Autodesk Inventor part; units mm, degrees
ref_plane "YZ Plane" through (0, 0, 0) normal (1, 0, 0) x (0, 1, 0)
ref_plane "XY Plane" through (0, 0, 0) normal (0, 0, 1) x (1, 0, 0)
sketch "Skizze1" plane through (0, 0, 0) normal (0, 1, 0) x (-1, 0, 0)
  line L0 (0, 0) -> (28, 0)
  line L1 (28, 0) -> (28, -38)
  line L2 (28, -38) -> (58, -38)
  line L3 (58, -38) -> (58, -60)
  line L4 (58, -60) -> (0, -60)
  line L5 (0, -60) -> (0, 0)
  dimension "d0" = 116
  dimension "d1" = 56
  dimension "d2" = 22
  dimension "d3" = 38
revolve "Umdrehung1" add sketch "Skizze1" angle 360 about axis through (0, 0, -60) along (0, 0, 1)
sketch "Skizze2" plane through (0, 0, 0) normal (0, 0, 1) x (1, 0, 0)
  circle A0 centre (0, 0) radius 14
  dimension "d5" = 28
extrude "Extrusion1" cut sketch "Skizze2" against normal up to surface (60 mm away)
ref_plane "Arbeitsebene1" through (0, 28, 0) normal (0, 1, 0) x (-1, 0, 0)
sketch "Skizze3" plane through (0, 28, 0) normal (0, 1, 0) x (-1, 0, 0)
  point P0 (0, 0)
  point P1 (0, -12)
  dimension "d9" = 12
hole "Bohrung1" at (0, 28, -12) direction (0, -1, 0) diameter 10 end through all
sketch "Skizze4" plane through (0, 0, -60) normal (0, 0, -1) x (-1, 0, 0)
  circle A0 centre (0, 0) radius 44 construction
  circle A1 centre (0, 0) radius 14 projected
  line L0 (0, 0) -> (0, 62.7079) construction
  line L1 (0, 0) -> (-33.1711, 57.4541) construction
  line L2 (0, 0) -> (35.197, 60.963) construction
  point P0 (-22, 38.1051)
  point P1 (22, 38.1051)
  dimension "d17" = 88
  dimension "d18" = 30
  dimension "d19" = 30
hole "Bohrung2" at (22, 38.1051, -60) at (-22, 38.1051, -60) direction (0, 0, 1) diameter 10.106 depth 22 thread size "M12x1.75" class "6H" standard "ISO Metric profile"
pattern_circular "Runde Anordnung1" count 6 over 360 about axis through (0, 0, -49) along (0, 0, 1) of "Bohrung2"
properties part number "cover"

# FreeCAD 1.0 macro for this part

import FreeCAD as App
import Part
import Sketcher

V = App.Vector

doc = App.newDocument("Part")
params = doc.addObject("Spreadsheet::Sheet", "Params")
for row, (alias, value) in enumerate([
    ("sketch1_height", "22 mm"),
    ("sketch1_height2", "38 mm"),
    ("sketch1_width", "28 mm"),
    ("sketch1_width2", "58 mm"),
    ("revolution_angle", "360 deg"),
    ("sketch2_diameter", "28 mm"),
    ("pocket1_length", "60 mm"),
    ("sketch3_diameter", "10 mm"),
    ("hole_diameter", "10 mm"),
    ("hole2_diameter", "10.106 mm"),
    ("hole2_depth", "22 mm"),
], start=1):
    params.set(f"A{row}", alias)
    params.set(f"B{row}", "=" + value)
    params.setAlias(f"B{row}", alias)

body = doc.addObject("PartDesign::Body", "Body")

sketch1 = body.newObject("Sketcher::SketchObject", "Sketch")
sketch1.AttachmentSupport = (doc.getObject("XZ_Plane"), [""])
sketch1.MapMode = "FlatFace"
sketch1.addGeometry(Part.LineSegment(V(-28, 0, 0), V(0, 0, 0)), False)
sketch1.addGeometry(Part.LineSegment(V(0, 0, 0), V(0, -60, 0)), False)
sketch1.addGeometry(Part.LineSegment(V(0, -60, 0), V(-58, -60, 0)), False)
sketch1.addGeometry(Part.LineSegment(V(-58, -60, 0), V(-58, -38, 0)), False)
sketch1.addGeometry(Part.LineSegment(V(-58, -38, 0), V(-28, -38, 0)), False)
sketch1.addGeometry(Part.LineSegment(V(-28, -38, 0), V(-28, 0, 0)), False)
sketch1.addConstraint(Sketcher.Constraint("Coincident", 0, 2, 1, 1))
sketch1.addConstraint(Sketcher.Constraint("Coincident", 1, 2, 2, 1))
sketch1.addConstraint(Sketcher.Constraint("Coincident", 2, 2, 3, 1))
sketch1.addConstraint(Sketcher.Constraint("Coincident", 3, 2, 4, 1))
sketch1.addConstraint(Sketcher.Constraint("Coincident", 4, 2, 5, 1))
sketch1.addConstraint(Sketcher.Constraint("Coincident", 5, 2, 0, 1))
sketch1.addConstraint(Sketcher.Constraint("Horizontal", 0))
sketch1.addConstraint(Sketcher.Constraint("Vertical", 1))
sketch1.addConstraint(Sketcher.Constraint("Horizontal", 2))
sketch1.addConstraint(Sketcher.Constraint("Vertical", 3))
sketch1.addConstraint(Sketcher.Constraint("Horizontal", 4))
sketch1.addConstraint(Sketcher.Constraint("Vertical", 5))
sketch1.addConstraint(Sketcher.Constraint("Coincident", 0, 2, -1, 1))
sketch1.addConstraint(Sketcher.Constraint("DistanceY", 3, 1, 3, 2, 22.0))
sketch1.addConstraint(Sketcher.Constraint("DistanceY", 5, 1, 5, 2, 38.0))
sketch1.addConstraint(Sketcher.Constraint("DistanceX", 0, 1, 0, 2, 28.0))
sketch1.addConstraint(Sketcher.Constraint("DistanceX", 2, 2, 2, 1, 58.0))
sketch1.setExpression("Constraints[13]", "Params.sketch1_height")
sketch1.setExpression("Constraints[14]", "Params.sketch1_height2")
sketch1.setExpression("Constraints[15]", "Params.sketch1_width")
sketch1.setExpression("Constraints[16]", "Params.sketch1_width2")
revolution = body.newObject("PartDesign::Revolution", "Revolution")
revolution.Profile = sketch1
revolution.ReferenceAxis = (sketch1, ["V_Axis"])
revolution.setExpression("Angle", "Params.revolution_angle")

sketch2 = body.newObject("Sketcher::SketchObject", "Sketch001")
sketch2.AttachmentSupport = (doc.getObject("XY_Plane"), [""])
sketch2.MapMode = "FlatFace"
sketch2.addGeometry(Part.Circle(V(0, 0, 0), V(0, 0, 1), 14), False)
sketch2.addConstraint(Sketcher.Constraint("Coincident", 0, 3, -1, 1))
sketch2.addConstraint(Sketcher.Constraint("Diameter", 0, 28.0))
sketch2.setExpression("Constraints[1]", "Params.sketch2_diameter")
pocket1 = body.newObject("PartDesign::Pocket", "Pocket")
pocket1.Profile = sketch2
pocket1.setExpression("Length", "Params.pocket1_length")

sketch3 = body.newObject("Sketcher::SketchObject", "Sketch002")
sketch3.AttachmentSupport = (doc.getObject("XZ_Plane"), [""])
sketch3.MapMode = "FlatFace"
sketch3.AttachmentOffset = App.Placement(V(0, 0, -28), App.Rotation())
sketch3.addGeometry(Part.Circle(V(0, -12, 0), V(0, 0, 1), 5), False)
sketch3.addConstraint(Sketcher.Constraint("PointOnObject", 0, 3, -2))
sketch3.addConstraint(Sketcher.Constraint("Diameter", 0, 10.0))
sketch3.addConstraint(Sketcher.Constraint("DistanceY", 0, 3, -1, 1, 12.0))
sketch3.setExpression("Constraints[1]", "Params.sketch3_diameter")
doc.recompute()
hole = body.newObject("PartDesign::Hole", "Hole")
hole.Profile = sketch3
hole.ThreadType = "None"
hole.setExpression("Diameter", "Params.hole_diameter")
hole.DepthType = "ThroughAll"
hole.Reversed = True

sketch4 = body.newObject("Sketcher::SketchObject", "Sketch003")
sketch4.AttachmentSupport = (doc.getObject("XY_Plane"), [""])
sketch4.MapMode = "FlatFace"
sketch4.AttachmentOffset = App.Placement(V(0, 0, -60), App.Rotation())
sketch4.addGeometry(Part.Circle(V(22, 38.1051, 0), V(0, 0, 1), 5.053), False)
sketch4.addGeometry(Part.Circle(V(-22, 38.1051, 0), V(0, 0, 1), 5.053), False)
sketch4.addConstraint(Sketcher.Constraint("Equal", 0, 1))
sketch4.addConstraint(Sketcher.Constraint("Symmetric", 0, 3, 1, 3, -2))
sketch4.addConstraint(Sketcher.Constraint("Diameter", 0, 10.106))
sketch4.addConstraint(Sketcher.Constraint("DistanceX", -1, 1, 0, 3, 22.0))
sketch4.addConstraint(Sketcher.Constraint("DistanceY", -1, 1, 0, 3, 38.105))
doc.recompute()
hole2 = body.newObject("PartDesign::Hole", "Hole001")
hole2.Profile = sketch4
hole2.ThreadType = "None"
hole2.setExpression("Diameter", "Params.hole2_diameter")
hole2.DepthType = "Dimension"
hole2.setExpression("Depth", "Params.hole2_depth")
hole2.DrillPoint = "Flat"
hole2.Reversed = True
doc.recompute()

polarpattern = body.newObject("PartDesign::PolarPattern", "PolarPattern")
polarpattern.Originals = [hole2]
polarpattern.Axis = (doc.getObject("Z_Axis"), [""])
polarpattern.Angle = 360
polarpattern.Occurrences = 6
body.Tip = polarpattern

doc.recompute()
